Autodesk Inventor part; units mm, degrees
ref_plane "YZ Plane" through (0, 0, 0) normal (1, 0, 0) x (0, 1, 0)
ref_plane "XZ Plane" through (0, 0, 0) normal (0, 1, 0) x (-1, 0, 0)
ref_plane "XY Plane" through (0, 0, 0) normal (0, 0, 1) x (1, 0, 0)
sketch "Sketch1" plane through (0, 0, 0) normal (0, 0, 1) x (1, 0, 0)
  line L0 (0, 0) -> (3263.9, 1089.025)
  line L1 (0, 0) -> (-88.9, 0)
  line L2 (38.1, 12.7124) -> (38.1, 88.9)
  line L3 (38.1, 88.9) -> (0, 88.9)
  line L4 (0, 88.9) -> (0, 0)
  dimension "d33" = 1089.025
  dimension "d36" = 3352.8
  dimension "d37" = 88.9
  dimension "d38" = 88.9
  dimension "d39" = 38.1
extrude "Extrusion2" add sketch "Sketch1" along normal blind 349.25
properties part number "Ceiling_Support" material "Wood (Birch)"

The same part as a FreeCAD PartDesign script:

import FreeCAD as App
import Part
import Sketcher

V = App.Vector
Q = App.Units.Quantity


def add_polygon(sketch, points):
    """Adds a closed chain of lines whose ends are joined by coincident constraints."""
    first, n = sketch.GeometryCount, len(points)
    for a, b in zip(points, points[1:] + points[:1]):
        sketch.addGeometry(Part.LineSegment(App.Vector(*a, 0), App.Vector(*b, 0)), False)
    for i in range(n):
        sketch.addConstraint(Sketcher.Constraint("Coincident", first + i, 2, first + (i + 1) % n, 1))

doc = App.newDocument("Part")
body = doc.addObject("PartDesign::Body", "Body")

# Sketch on XY plane
sketch1 = body.newObject("Sketcher::SketchObject", "Sketch")
sketch1.AttachmentSupport = (doc.getObject("XY_Plane"), [""])
sketch1.MapMode = "FlatFace"
add_polygon(sketch1, [(0, 89), (0, 0), (38, 13), (38, 89)])  # lines 0-3
sketch1.addConstraint([
    Sketcher.Constraint("Vertical", 0),
    Sketcher.Constraint("Vertical", 2),
    Sketcher.Constraint("Horizontal", 3),
    Sketcher.Constraint("Coincident", 0, 2, -1, 1),
    Sketcher.Constraint("DistanceX", 3, 2, 3, 1, Q("1.5 in")),
    Sketcher.Constraint("DistanceY", 0, 2, 0, 1, Q("3.5 in")),
    Sketcher.Constraint("DistanceY", 2, 1, 2, 2, Q("2.9995 in")),
])
pad1 = body.newObject("PartDesign::Pad", "Pad")
pad1.Profile = sketch1
pad1.Length = Q("13.75 in")

doc.recompute()
